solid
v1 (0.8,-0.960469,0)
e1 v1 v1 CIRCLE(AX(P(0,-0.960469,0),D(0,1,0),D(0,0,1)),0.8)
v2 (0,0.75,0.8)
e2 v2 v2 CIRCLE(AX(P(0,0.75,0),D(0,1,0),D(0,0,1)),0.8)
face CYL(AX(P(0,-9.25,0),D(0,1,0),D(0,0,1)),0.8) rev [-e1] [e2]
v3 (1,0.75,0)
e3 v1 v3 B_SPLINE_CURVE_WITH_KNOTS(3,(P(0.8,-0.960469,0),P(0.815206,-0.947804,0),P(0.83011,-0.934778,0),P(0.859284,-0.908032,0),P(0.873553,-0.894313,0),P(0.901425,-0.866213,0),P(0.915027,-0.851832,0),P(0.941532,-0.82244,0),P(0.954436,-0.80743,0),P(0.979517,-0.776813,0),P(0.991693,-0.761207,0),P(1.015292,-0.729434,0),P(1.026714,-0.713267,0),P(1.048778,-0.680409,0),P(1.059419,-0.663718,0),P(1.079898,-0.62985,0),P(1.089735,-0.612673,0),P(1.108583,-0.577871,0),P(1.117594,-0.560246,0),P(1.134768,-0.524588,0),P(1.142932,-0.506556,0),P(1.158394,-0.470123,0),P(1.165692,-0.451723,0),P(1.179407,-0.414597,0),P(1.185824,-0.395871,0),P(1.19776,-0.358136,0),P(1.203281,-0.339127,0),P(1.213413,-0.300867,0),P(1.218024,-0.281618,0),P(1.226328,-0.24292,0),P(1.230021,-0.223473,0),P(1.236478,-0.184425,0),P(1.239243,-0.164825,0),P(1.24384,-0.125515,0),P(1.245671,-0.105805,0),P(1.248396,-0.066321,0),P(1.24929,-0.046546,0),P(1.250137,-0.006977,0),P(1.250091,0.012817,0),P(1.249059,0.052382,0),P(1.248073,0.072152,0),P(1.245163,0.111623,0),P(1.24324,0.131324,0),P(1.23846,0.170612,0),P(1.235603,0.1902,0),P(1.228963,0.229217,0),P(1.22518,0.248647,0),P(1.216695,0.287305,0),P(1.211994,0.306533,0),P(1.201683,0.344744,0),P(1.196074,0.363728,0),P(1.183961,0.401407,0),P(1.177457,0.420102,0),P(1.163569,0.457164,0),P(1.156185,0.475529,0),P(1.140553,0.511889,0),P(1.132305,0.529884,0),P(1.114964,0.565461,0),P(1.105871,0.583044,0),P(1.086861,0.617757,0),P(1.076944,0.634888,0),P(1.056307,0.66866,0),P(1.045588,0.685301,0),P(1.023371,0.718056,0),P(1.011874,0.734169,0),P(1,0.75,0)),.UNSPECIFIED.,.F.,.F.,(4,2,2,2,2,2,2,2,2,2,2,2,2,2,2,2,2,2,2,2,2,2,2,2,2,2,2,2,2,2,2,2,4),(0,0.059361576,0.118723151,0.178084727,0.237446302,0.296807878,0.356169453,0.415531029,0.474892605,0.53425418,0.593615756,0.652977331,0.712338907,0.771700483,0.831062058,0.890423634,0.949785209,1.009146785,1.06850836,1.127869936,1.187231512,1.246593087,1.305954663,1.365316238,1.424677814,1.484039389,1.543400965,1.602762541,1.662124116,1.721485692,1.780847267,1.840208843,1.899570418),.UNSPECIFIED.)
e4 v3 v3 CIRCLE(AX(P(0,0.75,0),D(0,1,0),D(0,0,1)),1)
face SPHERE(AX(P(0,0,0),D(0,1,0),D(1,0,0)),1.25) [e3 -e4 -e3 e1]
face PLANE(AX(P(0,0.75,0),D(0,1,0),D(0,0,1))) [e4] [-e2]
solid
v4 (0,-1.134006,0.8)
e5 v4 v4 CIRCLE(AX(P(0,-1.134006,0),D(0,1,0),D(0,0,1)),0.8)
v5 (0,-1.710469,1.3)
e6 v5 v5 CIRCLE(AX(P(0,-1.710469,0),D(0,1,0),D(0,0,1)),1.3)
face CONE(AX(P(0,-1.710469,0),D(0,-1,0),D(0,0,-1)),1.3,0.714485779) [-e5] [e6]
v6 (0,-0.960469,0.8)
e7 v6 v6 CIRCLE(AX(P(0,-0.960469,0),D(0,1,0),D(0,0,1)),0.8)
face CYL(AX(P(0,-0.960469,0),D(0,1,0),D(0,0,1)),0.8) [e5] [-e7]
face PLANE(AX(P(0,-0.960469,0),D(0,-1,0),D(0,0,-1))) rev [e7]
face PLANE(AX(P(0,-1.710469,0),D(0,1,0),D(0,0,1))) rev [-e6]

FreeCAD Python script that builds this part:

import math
import FreeCAD as App
import Part
import Sketcher
from FreeCAD import Vector
Q = App.Units.Quantity

doc = App.newDocument("Part")
body = doc.addObject("PartDesign::Body", "Body")

# Sketch on XY plane
sketch1 = body.newObject("Sketcher::SketchObject", "Sketch")
sketch1.AttachmentSupport = (doc.getObject("XY_Plane"), [""])
sketch1.MapMode = "FlatFace"
sketch1.addGeometry(Part.LineSegment(Vector(0, 1.2, 0), Vector(0, -1.2, 0)), False)
sketch1.addGeometry(Part.ArcOfCircle(Part.Circle(Vector(0, 0, 0), Vector(0, 0, 1), 1.2), math.radians(-90), math.radians(90)), False)
sketch1.addConstraint(Sketcher.Constraint("Coincident", 0, 1, 1, 2))
sketch1.addConstraint(Sketcher.Constraint("Coincident", 1, 1, 0, 2))
sketch1.addConstraint(Sketcher.Constraint("Vertical", 0))
sketch1.addConstraint(Sketcher.Constraint("Coincident", 1, 3, -1, 1))
sketch1.addConstraint(Sketcher.Constraint("PointOnObject", 0, 1, -2))
sketch1.addConstraint(Sketcher.Constraint("Radius", 1, Q("1.25 mm")))
revolution = body.newObject("PartDesign::Revolution", "Revolution")
revolution.Profile = sketch1
revolution.ReferenceAxis = (sketch1, ["V_Axis"])
revolution.Angle = 360

# Sketch on XZ plane
sketch2 = body.newObject("Sketcher::SketchObject", "Sketch001")
sketch2.AttachmentSupport = (doc.getObject("XZ_Plane"), [""])
sketch2.MapMode = "FlatFace"
sketch2.AttachmentOffset = App.Placement(Vector(0, 0, -0.75), App.Rotation())
sketch2.addGeometry(Part.Circle(Vector(0, 0, 0), Vector(0, 0, 1), 1), False)
sketch2.addConstraint(Sketcher.Constraint("Coincident", 0, 3, -1, 1))
sketch2.addConstraint(Sketcher.Constraint("Diameter", 0, Q("2.075284 mm")))
pocket1 = body.newObject("PartDesign::Pocket", "Pocket")
pocket1.Profile = sketch2
pocket1.Length = 10

# Sketch on XZ plane
sketch3 = body.newObject("Sketcher::SketchObject", "Sketch002")
sketch3.AttachmentSupport = (doc.getObject("XZ_Plane"), [""])
sketch3.MapMode = "FlatFace"
sketch3.AttachmentOffset = App.Placement(Vector(0, 0, -0.75), App.Rotation())
sketch3.addGeometry(Part.Circle(Vector(0, 0, 0), Vector(0, 0, 1), 0.8), False)
sketch3.addConstraint(Sketcher.Constraint("Coincident", 0, 3, -1, 1))
sketch3.addConstraint(Sketcher.Constraint("Diameter", 0, Q("1.6 mm")))
pocket2 = body.newObject("PartDesign::Pocket", "Pocket001")
pocket2.Profile = sketch3
pocket2.Length = 10
pocket2.Reversed = True
body2 = doc.addObject("PartDesign::Body", "Body001")

# Sketch on YZ plane
sketch4 = body2.newObject("Sketcher::SketchObject", "Sketch003")
sketch4.AttachmentSupport = (doc.getObject("YZ_Plane001"), [""])
sketch4.MapMode = "FlatFace"
sketch4.addGeometry(Part.LineSegment(Vector(-0.96, 0, 0), Vector(-1.71, 0, 0)), False)
sketch4.addGeometry(Part.LineSegment(Vector(-1.71, 0, 0), Vector(-1.71, -1.3, 0)), False)
sketch4.addGeometry(Part.LineSegment(Vector(-1.71, -1.3, 0), Vector(-1.13, -0.8, 0)), False)
sketch4.addGeometry(Part.LineSegment(Vector(-1.13, -0.8, 0), Vector(-0.96, -0.8, 0)), False)
sketch4.addGeometry(Part.LineSegment(Vector(-0.96, -0.8, 0), Vector(-0.96, 0, 0)), False)
sketch4.addConstraint(Sketcher.Constraint("Coincident", 0, 2, 1, 1))
sketch4.addConstraint(Sketcher.Constraint("Coincident", 1, 2, 2, 1))
sketch4.addConstraint(Sketcher.Constraint("Coincident", 2, 2, 3, 1))
sketch4.addConstraint(Sketcher.Constraint("Coincident", 3, 2, 4, 1))
sketch4.addConstraint(Sketcher.Constraint("Coincident", 4, 2, 0, 1))
sketch4.addConstraint(Sketcher.Constraint("Horizontal", 0))
sketch4.addConstraint(Sketcher.Constraint("Vertical", 1))
sketch4.addConstraint(Sketcher.Constraint("Horizontal", 3))
sketch4.addConstraint(Sketcher.Constraint("Vertical", 4))
sketch4.addConstraint(Sketcher.Constraint("PointOnObject", 0, 2, -1))
sketch4.addConstraint(Sketcher.Constraint("DistanceY", 1, 2, 1, 1, Q("1.3 mm")))
sketch4.addConstraint(Sketcher.Constraint("DistanceY", 4, 1, 4, 2, Q("0.8 mm")))
sketch4.addConstraint(Sketcher.Constraint("DistanceX", 0, 2, 0, 1, Q("0.75 mm")))
sketch4.addConstraint(Sketcher.Constraint("Distance", 2, Q("0.763092 mm")))
sketch4.addConstraint(Sketcher.Constraint("DistanceX", 0, 2, -1, 1, Q("1.710469 mm")))
revolution2 = body2.newObject("PartDesign::Revolution", "Revolution001")
revolution2.Profile = sketch4
revolution2.ReferenceAxis = (sketch4, ["H_Axis"])
revolution2.Angle = 360

doc.recompute()
